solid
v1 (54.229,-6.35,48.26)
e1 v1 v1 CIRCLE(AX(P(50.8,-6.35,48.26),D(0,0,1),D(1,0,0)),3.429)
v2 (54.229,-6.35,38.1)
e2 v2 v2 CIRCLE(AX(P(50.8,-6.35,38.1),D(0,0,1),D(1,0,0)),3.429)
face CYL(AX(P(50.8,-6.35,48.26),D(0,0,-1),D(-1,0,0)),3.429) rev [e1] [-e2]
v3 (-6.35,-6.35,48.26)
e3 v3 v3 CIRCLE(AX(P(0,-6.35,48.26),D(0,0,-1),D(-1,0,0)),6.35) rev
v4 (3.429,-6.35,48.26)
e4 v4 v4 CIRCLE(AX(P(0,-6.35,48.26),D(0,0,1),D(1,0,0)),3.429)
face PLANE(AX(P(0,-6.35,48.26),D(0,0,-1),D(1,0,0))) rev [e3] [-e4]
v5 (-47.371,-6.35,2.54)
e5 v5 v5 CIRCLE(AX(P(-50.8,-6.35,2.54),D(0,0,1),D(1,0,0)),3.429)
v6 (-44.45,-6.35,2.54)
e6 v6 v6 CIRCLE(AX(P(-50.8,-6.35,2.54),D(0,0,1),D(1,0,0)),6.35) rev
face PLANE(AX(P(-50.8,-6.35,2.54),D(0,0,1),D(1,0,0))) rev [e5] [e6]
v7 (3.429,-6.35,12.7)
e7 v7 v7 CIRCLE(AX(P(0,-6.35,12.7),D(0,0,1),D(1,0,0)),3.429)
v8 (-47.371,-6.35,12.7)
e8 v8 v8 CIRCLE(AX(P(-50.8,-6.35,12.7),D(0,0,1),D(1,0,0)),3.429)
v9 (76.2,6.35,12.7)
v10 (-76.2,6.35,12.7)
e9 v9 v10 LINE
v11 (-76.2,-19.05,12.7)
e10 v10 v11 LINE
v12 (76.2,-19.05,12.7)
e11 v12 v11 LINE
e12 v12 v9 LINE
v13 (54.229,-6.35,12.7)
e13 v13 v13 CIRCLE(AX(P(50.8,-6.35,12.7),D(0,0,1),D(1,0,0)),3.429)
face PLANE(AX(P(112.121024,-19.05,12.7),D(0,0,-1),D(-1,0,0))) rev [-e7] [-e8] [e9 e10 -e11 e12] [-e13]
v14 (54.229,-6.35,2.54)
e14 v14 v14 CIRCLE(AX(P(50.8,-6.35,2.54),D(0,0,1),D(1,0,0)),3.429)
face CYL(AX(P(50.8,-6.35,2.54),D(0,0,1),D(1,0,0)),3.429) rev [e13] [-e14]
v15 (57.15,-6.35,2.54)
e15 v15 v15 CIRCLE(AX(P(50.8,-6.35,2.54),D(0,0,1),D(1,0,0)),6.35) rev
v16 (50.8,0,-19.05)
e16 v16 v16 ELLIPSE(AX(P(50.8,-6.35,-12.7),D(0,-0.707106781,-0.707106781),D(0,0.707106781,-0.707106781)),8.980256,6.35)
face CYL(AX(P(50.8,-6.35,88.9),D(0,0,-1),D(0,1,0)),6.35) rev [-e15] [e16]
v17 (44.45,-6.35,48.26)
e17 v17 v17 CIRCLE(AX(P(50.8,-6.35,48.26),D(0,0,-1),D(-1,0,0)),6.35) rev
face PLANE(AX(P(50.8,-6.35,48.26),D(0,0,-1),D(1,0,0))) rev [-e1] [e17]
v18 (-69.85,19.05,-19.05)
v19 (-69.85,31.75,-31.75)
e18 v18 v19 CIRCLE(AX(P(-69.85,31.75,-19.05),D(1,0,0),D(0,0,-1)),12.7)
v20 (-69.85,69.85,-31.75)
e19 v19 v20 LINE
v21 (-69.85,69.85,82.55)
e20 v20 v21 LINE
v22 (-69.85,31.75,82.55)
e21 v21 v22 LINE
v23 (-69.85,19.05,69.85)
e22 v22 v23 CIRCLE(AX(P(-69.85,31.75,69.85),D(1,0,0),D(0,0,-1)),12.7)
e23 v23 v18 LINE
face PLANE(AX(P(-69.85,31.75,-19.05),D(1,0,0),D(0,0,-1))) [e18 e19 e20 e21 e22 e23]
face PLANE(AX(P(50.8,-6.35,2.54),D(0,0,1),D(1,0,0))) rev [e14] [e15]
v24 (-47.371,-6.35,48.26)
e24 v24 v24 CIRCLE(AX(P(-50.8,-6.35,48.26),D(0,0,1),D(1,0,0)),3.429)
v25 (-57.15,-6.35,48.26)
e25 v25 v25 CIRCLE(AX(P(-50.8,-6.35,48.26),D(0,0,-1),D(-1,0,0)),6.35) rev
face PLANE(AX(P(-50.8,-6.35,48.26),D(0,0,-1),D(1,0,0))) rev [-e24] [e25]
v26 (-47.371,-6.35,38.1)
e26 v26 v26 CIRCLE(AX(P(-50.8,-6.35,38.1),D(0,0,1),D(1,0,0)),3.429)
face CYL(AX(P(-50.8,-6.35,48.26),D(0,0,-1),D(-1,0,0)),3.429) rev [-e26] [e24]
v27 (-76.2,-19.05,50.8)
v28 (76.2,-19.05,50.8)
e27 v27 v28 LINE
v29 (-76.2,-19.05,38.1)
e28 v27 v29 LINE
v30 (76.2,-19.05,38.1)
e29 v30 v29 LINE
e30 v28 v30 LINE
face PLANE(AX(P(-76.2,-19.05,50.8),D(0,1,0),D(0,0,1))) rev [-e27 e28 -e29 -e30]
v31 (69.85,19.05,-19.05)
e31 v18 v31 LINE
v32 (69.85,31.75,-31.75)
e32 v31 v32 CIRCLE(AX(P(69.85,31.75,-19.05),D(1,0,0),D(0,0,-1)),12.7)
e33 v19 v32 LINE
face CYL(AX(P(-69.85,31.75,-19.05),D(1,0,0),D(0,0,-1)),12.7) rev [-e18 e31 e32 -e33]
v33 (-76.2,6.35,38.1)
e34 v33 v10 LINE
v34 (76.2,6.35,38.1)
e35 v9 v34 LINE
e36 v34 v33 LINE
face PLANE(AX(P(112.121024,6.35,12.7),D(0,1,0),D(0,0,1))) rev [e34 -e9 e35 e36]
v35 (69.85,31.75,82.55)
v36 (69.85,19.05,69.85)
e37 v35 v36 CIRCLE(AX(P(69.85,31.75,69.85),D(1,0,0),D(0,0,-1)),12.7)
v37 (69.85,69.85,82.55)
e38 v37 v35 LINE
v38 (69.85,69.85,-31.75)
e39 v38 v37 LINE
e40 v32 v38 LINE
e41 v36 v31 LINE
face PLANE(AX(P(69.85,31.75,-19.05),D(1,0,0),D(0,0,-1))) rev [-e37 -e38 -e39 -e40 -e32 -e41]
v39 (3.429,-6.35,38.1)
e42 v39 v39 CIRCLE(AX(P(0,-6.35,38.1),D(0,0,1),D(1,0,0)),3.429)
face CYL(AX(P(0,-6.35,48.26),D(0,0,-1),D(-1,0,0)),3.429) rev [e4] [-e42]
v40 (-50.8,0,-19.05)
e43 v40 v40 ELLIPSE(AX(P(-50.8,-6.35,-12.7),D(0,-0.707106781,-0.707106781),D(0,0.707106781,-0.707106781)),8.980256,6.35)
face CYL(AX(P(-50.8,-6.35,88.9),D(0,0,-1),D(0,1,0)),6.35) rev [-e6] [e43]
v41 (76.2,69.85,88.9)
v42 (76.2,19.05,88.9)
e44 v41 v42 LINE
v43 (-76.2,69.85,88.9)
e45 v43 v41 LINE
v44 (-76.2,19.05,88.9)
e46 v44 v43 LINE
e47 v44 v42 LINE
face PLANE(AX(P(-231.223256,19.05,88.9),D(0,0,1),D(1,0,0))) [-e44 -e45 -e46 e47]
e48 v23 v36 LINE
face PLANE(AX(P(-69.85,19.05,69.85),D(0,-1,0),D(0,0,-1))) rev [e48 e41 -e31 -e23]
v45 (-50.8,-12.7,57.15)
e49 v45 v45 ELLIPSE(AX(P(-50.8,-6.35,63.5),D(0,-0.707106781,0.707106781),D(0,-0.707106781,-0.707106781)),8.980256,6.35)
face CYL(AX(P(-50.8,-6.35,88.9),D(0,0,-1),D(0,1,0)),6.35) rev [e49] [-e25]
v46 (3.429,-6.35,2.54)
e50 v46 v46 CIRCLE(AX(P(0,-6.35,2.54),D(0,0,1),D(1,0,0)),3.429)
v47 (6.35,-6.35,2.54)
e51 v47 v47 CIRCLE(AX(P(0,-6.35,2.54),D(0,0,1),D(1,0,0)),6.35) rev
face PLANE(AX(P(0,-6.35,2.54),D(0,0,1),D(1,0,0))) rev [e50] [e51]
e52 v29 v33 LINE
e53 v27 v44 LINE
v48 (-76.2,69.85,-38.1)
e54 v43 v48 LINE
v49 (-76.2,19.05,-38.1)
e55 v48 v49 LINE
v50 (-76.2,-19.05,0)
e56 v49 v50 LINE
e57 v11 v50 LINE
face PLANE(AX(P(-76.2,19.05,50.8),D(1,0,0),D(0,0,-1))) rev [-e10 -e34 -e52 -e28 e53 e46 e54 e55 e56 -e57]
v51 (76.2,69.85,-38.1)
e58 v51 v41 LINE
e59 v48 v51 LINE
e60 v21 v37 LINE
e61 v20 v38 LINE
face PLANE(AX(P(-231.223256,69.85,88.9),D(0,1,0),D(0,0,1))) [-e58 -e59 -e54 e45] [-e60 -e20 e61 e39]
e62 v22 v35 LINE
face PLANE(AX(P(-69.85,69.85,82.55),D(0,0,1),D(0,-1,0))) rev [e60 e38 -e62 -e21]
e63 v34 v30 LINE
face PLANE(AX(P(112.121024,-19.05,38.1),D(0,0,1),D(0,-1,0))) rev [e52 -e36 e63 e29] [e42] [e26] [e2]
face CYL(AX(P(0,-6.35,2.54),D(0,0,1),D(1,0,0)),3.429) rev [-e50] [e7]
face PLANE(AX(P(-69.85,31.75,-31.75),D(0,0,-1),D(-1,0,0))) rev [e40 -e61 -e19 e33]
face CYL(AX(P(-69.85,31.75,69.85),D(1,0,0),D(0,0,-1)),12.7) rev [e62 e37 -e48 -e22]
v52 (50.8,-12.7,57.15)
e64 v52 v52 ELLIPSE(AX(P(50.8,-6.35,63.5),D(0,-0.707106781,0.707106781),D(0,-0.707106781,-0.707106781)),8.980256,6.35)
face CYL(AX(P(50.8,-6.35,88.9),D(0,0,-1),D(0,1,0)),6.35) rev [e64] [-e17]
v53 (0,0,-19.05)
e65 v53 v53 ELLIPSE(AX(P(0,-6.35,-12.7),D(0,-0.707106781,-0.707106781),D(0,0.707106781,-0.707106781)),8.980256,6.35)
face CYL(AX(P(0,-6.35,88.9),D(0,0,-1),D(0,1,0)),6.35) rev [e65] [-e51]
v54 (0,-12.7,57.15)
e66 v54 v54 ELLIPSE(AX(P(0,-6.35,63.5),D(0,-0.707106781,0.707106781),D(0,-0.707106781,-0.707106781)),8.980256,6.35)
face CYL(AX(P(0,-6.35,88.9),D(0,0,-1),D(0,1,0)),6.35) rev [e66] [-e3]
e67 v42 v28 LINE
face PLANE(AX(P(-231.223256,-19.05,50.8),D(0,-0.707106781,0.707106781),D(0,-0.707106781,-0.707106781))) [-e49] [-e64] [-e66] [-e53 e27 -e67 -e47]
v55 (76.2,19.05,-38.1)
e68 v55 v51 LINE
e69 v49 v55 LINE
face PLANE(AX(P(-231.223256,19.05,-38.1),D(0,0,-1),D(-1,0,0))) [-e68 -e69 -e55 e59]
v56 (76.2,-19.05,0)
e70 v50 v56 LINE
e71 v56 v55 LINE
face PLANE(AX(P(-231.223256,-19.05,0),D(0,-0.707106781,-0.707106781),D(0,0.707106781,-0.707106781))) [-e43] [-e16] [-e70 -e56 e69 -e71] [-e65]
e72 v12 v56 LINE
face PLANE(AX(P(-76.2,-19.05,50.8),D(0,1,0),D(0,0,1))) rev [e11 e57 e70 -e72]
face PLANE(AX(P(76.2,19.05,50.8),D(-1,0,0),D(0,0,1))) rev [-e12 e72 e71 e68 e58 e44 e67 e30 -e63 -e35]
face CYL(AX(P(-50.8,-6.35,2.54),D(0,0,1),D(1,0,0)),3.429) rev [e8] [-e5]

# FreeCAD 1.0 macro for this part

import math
import FreeCAD as App
import Part
import Sketcher
Q = App.Units.Quantity


def add_polygon(sketch, points):
    """Adds a closed chain of lines whose ends are joined by coincident constraints."""
    first, n = sketch.GeometryCount, len(points)
    for a, b in zip(points, points[1:] + points[:1]):
        sketch.addGeometry(Part.LineSegment(App.Vector(*a, 0), App.Vector(*b, 0)), False)
    for i in range(n):
        sketch.addConstraint(Sketcher.Constraint("Coincident", first + i, 2, first + (i + 1) % n, 1))

doc = App.newDocument("Part")
body = doc.addObject("PartDesign::Body", "Body")

sketch1 = body.newObject("Sketcher::SketchObject", "Sketch")
sketch1.AttachmentSupport = (doc.getObject("XY_Plane"), [""])
sketch1.MapMode = "FlatFace"
add_polygon(sketch1, [(-76, 19), (-76, -19), (76, -19), (76, 19)])
sketch1.addConstraint([
    Sketcher.Constraint("Vertical", 0),
    Sketcher.Constraint("Horizontal", 1),
    Sketcher.Constraint("Vertical", 2),
    Sketcher.Constraint("Horizontal", 3),
    Sketcher.Constraint("Symmetric", 0, 2, 2, 2, -1, 1),
    Sketcher.Constraint("DistanceX", 1, 1, 1, 2, Q("6 in")),
    Sketcher.Constraint("DistanceY", 0, 2, 0, 1, Q("1.5 in")),
])
pad1 = body.newObject("PartDesign::Pad", "Pad")
pad1.Profile = sketch1
pad1.Length = Q("2 in")

sketch2 = body.newObject("Sketcher::SketchObject", "Sketch001")
sketch2.AttachmentSupport = (doc.getObject("YZ_Plane"), [""])
sketch2.MapMode = "FlatFace"
sketch2.AttachmentOffset = App.Placement(App.Vector(0, 0, -3 * 25.4), App.Rotation())
add_polygon(sketch2, [(6, 13), (-19, 13), (-19, 38), (6, 38)])
sketch2.addConstraint([
    Sketcher.Constraint("Horizontal", 0),
    Sketcher.Constraint("Vertical", 1),
    Sketcher.Constraint("Horizontal", 2),
    Sketcher.Constraint("Vertical", 3),
    Sketcher.Constraint("Equal", 2, 1),
    Sketcher.Constraint("DistanceX", 0, 2, 0, 1, Q("1 in")),
    Sketcher.Constraint("DistanceY", -1, 1, 0, 2, Q("0.5 in")),
    Sketcher.Constraint("DistanceX", 0, 2, -1, 1, Q("0.75 in")),
])
pocket1 = body.newObject("PartDesign::Pocket", "Pocket")
pocket1.Profile = sketch2
pocket1.Length = Q("6 in")
pocket1.Reversed = True

sketch3 = body.newObject("Sketcher::SketchObject", "Sketch002")
sketch3.AttachmentSupport = (doc.getObject("YZ_Plane"), [""])
sketch3.MapMode = "FlatFace"
sketch3.AttachmentOffset = App.Placement(App.Vector(0, 0, 3 * 25.4), App.Rotation())
add_polygon(sketch3, [(-19, 0), (19, -38), (70, -38), (70, 89), (19, 89), (-19, 51), (19, 51), (19, 0)])
sketch3.addConstraint([
    Sketcher.Constraint("Horizontal", 1),
    Sketcher.Constraint("Vertical", 2),
    Sketcher.Constraint("Horizontal", 3),
    Sketcher.Constraint("Horizontal", 5),
    Sketcher.Constraint("Vertical", 6),
    Sketcher.Constraint("Horizontal", 7),
    Sketcher.Constraint("Symmetric", 6, 2, 7, 2, -1, 1),
    Sketcher.Constraint("Perpendicular", 0, 4),
    Sketcher.Constraint("Vertical", 0, 2, 3, 2),
    Sketcher.Constraint("Vertical", 3, 2, 5, 2),
    Sketcher.Constraint("Vertical", 4, 2, 7, 2),
    Sketcher.Constraint("Equal", 3, 6),
    Sketcher.Constraint("Equal", 0, 4),
    Sketcher.Constraint("DistanceX", 1, 1, 1, 2, Q("2 in")),
    Sketcher.Constraint("DistanceY", 2, 1, 2, 2, Q("5 in")),
])
pad2 = body.newObject("PartDesign::Pad", "Pad001")
pad2.Profile = sketch3
pad2.Length = Q("6 in")
pad2.Reversed = True

sketch4 = body.newObject("Sketcher::SketchObject", "Sketch003")
sketch4.AttachmentSupport = (doc.getObject("XY_Plane"), [""])
sketch4.MapMode = "FlatFace"
sketch4.AttachmentOffset = App.Placement(App.Vector(0, 0, 1.5 * 25.4), App.Rotation())
sketch4.addGeometry([
    Part.Circle(App.Vector(0, -6, 0), App.Vector(0, 0, 1), 6),
    Part.Circle(App.Vector(51, -6, 0), App.Vector(0, 0, 1), 6),
    Part.Circle(App.Vector(-51, -6, 0), App.Vector(0, 0, 1), 6),
], False)
sketch4.addConstraint([
    Sketcher.Constraint("Equal", 0, 1),
    Sketcher.Constraint("Equal", 1, 2),
    Sketcher.Constraint("Symmetric", 1, 3, 2, 3, -2),
    Sketcher.Constraint("PointOnObject", 0, 3, -2),
    Sketcher.Constraint("Horizontal", 0, 3, 1, 3),
    Sketcher.Constraint("Diameter", 0, Q("0.5 in")),
    Sketcher.Constraint("DistanceX", -1, 1, 1, 3, Q("2 in")),
    Sketcher.Constraint("DistanceY", 0, 3, -1, 1, Q("0.25 in")),
])
pocket2 = body.newObject("PartDesign::Pocket", "Pocket001")
pocket2.Profile = sketch4
pocket2.Type = "ThroughAll"
pocket2.Midplane = True

sketch5 = body.newObject("Sketcher::SketchObject", "Sketch004")
sketch5.AttachmentSupport = (doc.getObject("XY_Plane"), [""])
sketch5.MapMode = "FlatFace"
sketch5.AttachmentOffset = App.Placement(App.Vector(0, 0, 0.5 * 25.4), App.Rotation())
sketch5.addGeometry([
    Part.Circle(App.Vector(-50.8, -6.3, 0), App.Vector(0, 0, 1), 6.3),
    Part.Circle(App.Vector(-50.8, -6.3, 0), App.Vector(0, 0, 1), 3.4),
    Part.Circle(App.Vector(0, -6.3, 0), App.Vector(0, 0, 1), 6.3),
    Part.Circle(App.Vector(0, -6.3, 0), App.Vector(0, 0, 1), 3.4),
    Part.Circle(App.Vector(50.8, -6.3, 0), App.Vector(0, 0, 1), 6.3),
    Part.Circle(App.Vector(50.8, -6.3, 0), App.Vector(0, 0, 1), 3.4),
], False)
sketch5.addConstraint([
    Sketcher.Constraint("Coincident", 1, 3, 0, 3),
    Sketcher.Constraint("Coincident", 3, 3, 2, 3),
    Sketcher.Constraint("Coincident", 5, 3, 4, 3),
    Sketcher.Constraint("Equal", 0, 2),
    Sketcher.Constraint("Equal", 1, 3),
    Sketcher.Constraint("Equal", 2, 4),
    Sketcher.Constraint("Equal", 3, 5),
    Sketcher.Constraint("Symmetric", 0, 3, 4, 3, -2),
    Sketcher.Constraint("PointOnObject", 2, 3, -2),
    Sketcher.Constraint("Horizontal", 1, 3, 2, 3),
    Sketcher.Constraint("Diameter", 0, Q("0.5 in")),
    Sketcher.Constraint("Diameter", 1, Q("0.27 in")),
    Sketcher.Constraint("DistanceX", 0, 3, -1, 1, Q("2 in")),
    Sketcher.Constraint("DistanceY", 0, 3, -1, 1, Q("0.25 in")),
])
pad3 = body.newObject("PartDesign::Pad", "Pad002")
pad3.Profile = sketch5
pad3.Length = Q("0.4 in")
pad3.Reversed = True

sketch6 = body.newObject("Sketcher::SketchObject", "Sketch005")
sketch6.AttachmentSupport = (doc.getObject("YZ_Plane"), [""])
sketch6.MapMode = "FlatFace"
sketch6.addGeometry([
    Part.LineSegment(App.Vector(70, 83, 0), App.Vector(32, 83, 0)),
    Part.ArcOfCircle(Part.Circle(App.Vector(32, 70, 0), App.Vector(0, 0, 1), 13), math.radians(90), math.radians(180)),
    Part.LineSegment(App.Vector(19, 70, 0), App.Vector(19, -19, 0)),
    Part.ArcOfCircle(Part.Circle(App.Vector(32, -19, 0), App.Vector(0, 0, 1), 13), math.radians(180), math.radians(270)),
    Part.LineSegment(App.Vector(32, -32, 0), App.Vector(70, -32, 0)),
    Part.LineSegment(App.Vector(70, -32, 0), App.Vector(70, 83, 0)),
], False)
sketch6.addConstraint([
    Sketcher.Constraint("Tangent", 0, 2, 1, 1),
    Sketcher.Constraint("Tangent", 1, 2, 2, 1),
    Sketcher.Constraint("Tangent", 2, 2, 3, 1),
    Sketcher.Constraint("Tangent", 3, 2, 4, 1),
    Sketcher.Constraint("Coincident", 4, 2, 5, 1),
    Sketcher.Constraint("Coincident", 5, 2, 0, 1),
    Sketcher.Constraint("Horizontal", 0),
    Sketcher.Constraint("Vertical", 2),
    Sketcher.Constraint("Horizontal", 4),
    Sketcher.Constraint("Vertical", 5),
    Sketcher.Constraint("Equal", 1, 3),
    Sketcher.Constraint("Radius", 1, Q("0.5 in")),
    Sketcher.Constraint("DistanceX", 0, 2, 0, 1, Q("1.5 in")),
    Sketcher.Constraint("DistanceY", 2, 2, 2, 1, Q("3.5 in")),
    Sketcher.Constraint("DistanceX", -1, 1, 1, 3, Q("1.25 in")),
    Sketcher.Constraint("DistanceY", -1, 1, 1, 3, Q("2.75 in")),
])
pocket3 = body.newObject("PartDesign::Pocket", "Pocket002")
pocket3.Profile = sketch6
pocket3.Length = Q("5.5 in")
pocket3.Midplane = True
doc.recompute()

datumplane = body.newObject("PartDesign::Plane", "DatumPlane")
datumplane.AttachmentSupport = (doc.getObject("XY_Plane"), [""])
datumplane.MapMode = "FlatFace"
datumplane.AttachmentOffset = App.Placement(App.Vector(0, 0, 1 * 25.4), App.Rotation())
mirrored = body.newObject("PartDesign::Mirrored", "Mirrored")
mirrored.Originals = [pad3]
mirrored.MirrorPlane = (datumplane, [""])
body.Tip = mirrored

doc.recompute()
